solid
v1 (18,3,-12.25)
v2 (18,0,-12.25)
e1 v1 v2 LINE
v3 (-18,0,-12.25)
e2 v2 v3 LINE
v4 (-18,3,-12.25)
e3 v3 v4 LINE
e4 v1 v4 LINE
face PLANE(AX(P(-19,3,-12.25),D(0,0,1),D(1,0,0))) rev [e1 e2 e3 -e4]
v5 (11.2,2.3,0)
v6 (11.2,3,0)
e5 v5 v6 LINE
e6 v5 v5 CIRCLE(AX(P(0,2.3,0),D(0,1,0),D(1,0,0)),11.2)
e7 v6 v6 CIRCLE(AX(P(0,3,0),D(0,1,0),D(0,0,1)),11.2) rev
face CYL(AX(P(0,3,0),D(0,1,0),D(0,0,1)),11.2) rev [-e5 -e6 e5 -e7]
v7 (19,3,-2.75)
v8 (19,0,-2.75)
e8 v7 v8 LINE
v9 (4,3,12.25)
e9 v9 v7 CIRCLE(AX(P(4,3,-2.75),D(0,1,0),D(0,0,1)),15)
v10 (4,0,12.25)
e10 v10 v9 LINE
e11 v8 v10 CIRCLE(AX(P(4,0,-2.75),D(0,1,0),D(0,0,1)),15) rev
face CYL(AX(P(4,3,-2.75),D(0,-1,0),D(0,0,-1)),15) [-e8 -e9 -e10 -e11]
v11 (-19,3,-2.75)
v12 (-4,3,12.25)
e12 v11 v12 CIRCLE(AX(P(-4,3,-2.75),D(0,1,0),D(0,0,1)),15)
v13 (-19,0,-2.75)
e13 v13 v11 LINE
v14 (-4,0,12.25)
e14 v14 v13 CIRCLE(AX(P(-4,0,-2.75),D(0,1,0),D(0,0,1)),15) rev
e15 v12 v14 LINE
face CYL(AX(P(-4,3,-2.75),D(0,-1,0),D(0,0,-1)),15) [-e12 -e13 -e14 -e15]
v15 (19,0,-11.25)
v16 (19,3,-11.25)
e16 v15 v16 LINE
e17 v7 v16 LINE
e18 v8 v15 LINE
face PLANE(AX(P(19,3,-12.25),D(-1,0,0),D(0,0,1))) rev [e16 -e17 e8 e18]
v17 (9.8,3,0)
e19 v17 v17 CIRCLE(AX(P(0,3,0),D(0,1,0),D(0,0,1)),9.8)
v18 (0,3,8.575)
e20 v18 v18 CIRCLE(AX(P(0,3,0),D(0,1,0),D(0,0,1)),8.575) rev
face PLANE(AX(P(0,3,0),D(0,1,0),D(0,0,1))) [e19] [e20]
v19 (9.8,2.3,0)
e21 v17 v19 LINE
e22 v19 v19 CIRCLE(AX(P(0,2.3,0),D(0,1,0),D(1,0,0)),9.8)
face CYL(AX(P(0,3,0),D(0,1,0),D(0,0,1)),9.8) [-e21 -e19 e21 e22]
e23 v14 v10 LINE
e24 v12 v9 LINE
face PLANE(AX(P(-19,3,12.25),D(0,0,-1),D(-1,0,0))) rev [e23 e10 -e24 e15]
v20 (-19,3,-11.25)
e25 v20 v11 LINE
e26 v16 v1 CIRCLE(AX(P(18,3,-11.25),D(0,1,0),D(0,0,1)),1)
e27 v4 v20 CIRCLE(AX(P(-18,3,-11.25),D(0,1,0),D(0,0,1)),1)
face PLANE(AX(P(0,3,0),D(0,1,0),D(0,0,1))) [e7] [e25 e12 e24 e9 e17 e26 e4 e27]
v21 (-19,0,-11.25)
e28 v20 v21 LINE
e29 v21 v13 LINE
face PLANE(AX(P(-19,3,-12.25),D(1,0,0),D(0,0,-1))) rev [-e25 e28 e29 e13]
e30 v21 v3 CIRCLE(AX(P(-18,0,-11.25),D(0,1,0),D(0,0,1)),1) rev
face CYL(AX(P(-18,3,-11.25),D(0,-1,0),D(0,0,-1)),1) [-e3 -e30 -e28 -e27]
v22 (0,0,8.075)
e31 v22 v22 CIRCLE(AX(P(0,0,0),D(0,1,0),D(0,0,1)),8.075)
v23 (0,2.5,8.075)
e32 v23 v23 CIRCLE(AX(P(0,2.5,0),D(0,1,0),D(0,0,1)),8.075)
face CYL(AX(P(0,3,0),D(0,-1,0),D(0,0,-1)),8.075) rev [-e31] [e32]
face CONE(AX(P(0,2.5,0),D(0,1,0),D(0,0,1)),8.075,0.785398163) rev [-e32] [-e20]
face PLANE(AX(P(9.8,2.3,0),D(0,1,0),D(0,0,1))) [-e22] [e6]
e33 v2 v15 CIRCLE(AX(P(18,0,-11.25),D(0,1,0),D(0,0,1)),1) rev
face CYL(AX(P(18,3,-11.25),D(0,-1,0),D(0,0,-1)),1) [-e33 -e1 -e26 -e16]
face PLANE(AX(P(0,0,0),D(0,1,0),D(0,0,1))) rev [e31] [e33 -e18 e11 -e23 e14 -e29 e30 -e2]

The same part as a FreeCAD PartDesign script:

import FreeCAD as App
import Part
import Sketcher


def edges_at(feature, points):
    """Names of the edges that pass closest to the given points."""
    edges = feature.Shape.Edges
    near = lambda p: min(range(len(edges)), key=lambda i: edges[i].distToShape(Part.Vertex(*p))[0])
    return sorted({f"Edge{near(p) + 1}" for p in points})

doc = App.newDocument("Part")
body = doc.addObject("PartDesign::Body", "Body")

sketch1 = body.newObject("Sketcher::SketchObject", "Sketch")
sketch1.AttachmentSupport = (doc.getObject("XZ_Plane"), [""])
sketch1.MapMode = "FlatFace"
sketch1.addGeometry([
    Part.LineSegment(App.Vector(-19, -12, 0), App.Vector(-19, 12, 0)),
    Part.LineSegment(App.Vector(-19, 12, 0), App.Vector(19, 12, 0)),
    Part.LineSegment(App.Vector(19, 12, 0), App.Vector(19, -12, 0)),
    Part.LineSegment(App.Vector(19, -12, 0), App.Vector(-19, -12, 0)),
    Part.Circle(App.Vector(0, 0, 0), App.Vector(0, 0, 1), 8),
], False)
sketch1.addConstraint([
    Sketcher.Constraint("Coincident", 0, 2, 1, 1),
    Sketcher.Constraint("Coincident", 1, 2, 2, 1),
    Sketcher.Constraint("Coincident", 2, 2, 3, 1),
    Sketcher.Constraint("Coincident", 3, 2, 0, 1),
    Sketcher.Constraint("Vertical", 0),
    Sketcher.Constraint("Horizontal", 1),
    Sketcher.Constraint("Vertical", 2),
    Sketcher.Constraint("Horizontal", 3),
    Sketcher.Constraint("Coincident", 4, 3, -1, 1),
    Sketcher.Constraint("Symmetric", 0, 2, 2, 2, -1, 1),
    Sketcher.Constraint("Diameter", 4, 16.15),
    Sketcher.Constraint("DistanceX", 1, 1, 1, 2, 38.0),
    Sketcher.Constraint("DistanceY", 0, 1, 0, 2, 24.5),
])
pad1 = body.newObject("PartDesign::Pad", "Pad")
pad1.Profile = sketch1
pad1.Length = 3
pad1.Reversed = True
doc.recompute()

fillet = body.newObject("PartDesign::Fillet", "Fillet")
fillet.Base = (pad1, edges_at(pad1, [(19, 1.5, 12.25), (-19, 1.5, 12.25)]))
fillet.Radius = 15

sketch2 = body.newObject("Sketcher::SketchObject", "Sketch001")
sketch2.AttachmentSupport = (doc.getObject("XY_Plane"), [""])
sketch2.MapMode = "FlatFace"
sketch2.addGeometry([
    Part.LineSegment(App.Vector(9.8, 3.7, 0), App.Vector(9.8, 2.3, 0)),
    Part.LineSegment(App.Vector(9.8, 2.3, 0), App.Vector(11.2, 2.3, 0)),
    Part.LineSegment(App.Vector(11.2, 2.3, 0), App.Vector(11.2, 3.7, 0)),
    Part.LineSegment(App.Vector(11.2, 3.7, 0), App.Vector(9.8, 3.7, 0)),
], False)
sketch2.addConstraint([
    Sketcher.Constraint("Coincident", 0, 2, 1, 1),
    Sketcher.Constraint("Coincident", 1, 2, 2, 1),
    Sketcher.Constraint("Coincident", 2, 2, 3, 1),
    Sketcher.Constraint("Coincident", 3, 2, 0, 1),
    Sketcher.Constraint("Vertical", 0),
    Sketcher.Constraint("Horizontal", 1),
    Sketcher.Constraint("Vertical", 2),
    Sketcher.Constraint("Horizontal", 3),
    Sketcher.Constraint("Equal", 3, 0),
    Sketcher.Constraint("DistanceX", 1, 1, 1, 2, 1.4),
    Sketcher.Constraint("DistanceX", -1, 1, 0, 2, 9.8),
    Sketcher.Constraint("DistanceY", -1, 1, 0, 2, 2.3),
])

sketch3 = body.newObject("Sketcher::SketchObject", "Sketch002")
sketch3.AttachmentSupport = (doc.getObject("XZ_Plane"), [""])
sketch3.MapMode = "FlatFace"
sketch3.AttachmentOffset = App.Placement(App.Vector(0, 0, -3), App.Rotation())
sketch3.addGeometry(Part.Circle(App.Vector(0, 0, 0), App.Vector(0, 0, 1), 10), False)
sketch3.addConstraint([
    Sketcher.Constraint("Coincident", 0, 3, -1, 1),
    Sketcher.Constraint("Diameter", 0, 21.0),
])
doc.recompute()

subtractivepipe = body.newObject("PartDesign::SubtractivePipe", "SubtractivePipe")
subtractivepipe.Profile = sketch2
subtractivepipe.Spine = (sketch3, ["Edge1"])
doc.recompute()

fillet2 = body.newObject("PartDesign::Fillet", "Fillet001")
fillet2.Base = (subtractivepipe, edges_at(subtractivepipe, [(-19, 1.5, -12.25), (19, 1.5, -12.25)]))
fillet2.Radius = 1
doc.recompute()

chamfer = body.newObject("PartDesign::Chamfer", "Chamfer")
chamfer.Base = (fillet2, edges_at(fillet2, [(0, 3, -8.075)]))
chamfer.Size = 0.5

doc.recompute()
